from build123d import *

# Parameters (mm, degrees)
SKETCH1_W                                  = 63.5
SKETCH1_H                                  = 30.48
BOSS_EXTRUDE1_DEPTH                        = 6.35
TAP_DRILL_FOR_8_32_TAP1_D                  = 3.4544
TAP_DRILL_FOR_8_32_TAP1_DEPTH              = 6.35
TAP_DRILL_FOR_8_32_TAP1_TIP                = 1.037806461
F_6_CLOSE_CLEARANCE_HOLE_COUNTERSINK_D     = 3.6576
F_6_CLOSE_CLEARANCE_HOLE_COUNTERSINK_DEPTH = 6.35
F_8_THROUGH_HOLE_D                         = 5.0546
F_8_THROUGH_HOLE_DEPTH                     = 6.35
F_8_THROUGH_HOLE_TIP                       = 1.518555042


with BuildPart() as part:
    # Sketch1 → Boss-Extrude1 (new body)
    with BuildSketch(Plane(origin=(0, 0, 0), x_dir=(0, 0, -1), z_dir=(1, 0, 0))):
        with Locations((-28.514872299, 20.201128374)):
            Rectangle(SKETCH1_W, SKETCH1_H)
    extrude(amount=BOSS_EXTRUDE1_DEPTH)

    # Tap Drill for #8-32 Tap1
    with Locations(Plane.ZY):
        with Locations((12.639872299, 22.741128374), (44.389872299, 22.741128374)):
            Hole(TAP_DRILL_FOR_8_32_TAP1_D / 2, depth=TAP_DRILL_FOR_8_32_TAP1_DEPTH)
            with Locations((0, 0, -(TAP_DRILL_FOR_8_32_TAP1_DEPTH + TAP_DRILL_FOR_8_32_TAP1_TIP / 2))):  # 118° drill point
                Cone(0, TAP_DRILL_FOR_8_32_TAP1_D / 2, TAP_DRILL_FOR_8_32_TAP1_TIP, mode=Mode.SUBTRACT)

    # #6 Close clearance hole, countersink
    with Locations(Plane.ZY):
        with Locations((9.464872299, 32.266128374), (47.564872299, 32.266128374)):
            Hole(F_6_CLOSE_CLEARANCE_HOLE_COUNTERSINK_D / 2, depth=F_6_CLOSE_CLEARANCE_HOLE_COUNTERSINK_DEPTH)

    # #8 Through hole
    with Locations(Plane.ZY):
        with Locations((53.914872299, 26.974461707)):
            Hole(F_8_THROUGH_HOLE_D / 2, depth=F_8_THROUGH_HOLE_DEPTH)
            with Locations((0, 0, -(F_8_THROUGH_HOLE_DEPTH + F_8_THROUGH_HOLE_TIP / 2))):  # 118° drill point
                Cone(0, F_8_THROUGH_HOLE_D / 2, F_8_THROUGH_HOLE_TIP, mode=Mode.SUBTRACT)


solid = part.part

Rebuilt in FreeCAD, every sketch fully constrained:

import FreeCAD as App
import Part
import Sketcher
from FreeCAD import Vector
Q = App.Units.Quantity

doc = App.newDocument("Part")
body = doc.addObject("PartDesign::Body", "Body")

# Sketch on YZ plane
sketch1 = body.newObject("Sketcher::SketchObject", "Sketch")
sketch1.AttachmentSupport = (doc.getObject("YZ_Plane"), [""])
sketch1.MapMode = "FlatFace"
sketch1.addGeometry(Part.LineSegment(Vector(35, 60, 0), Vector(5, 60, 0)), False)
sketch1.addGeometry(Part.LineSegment(Vector(5, 60, 0), Vector(5, -3, 0)), False)
sketch1.addGeometry(Part.LineSegment(Vector(5, -3, 0), Vector(35, -3, 0)), False)
sketch1.addGeometry(Part.LineSegment(Vector(35, -3, 0), Vector(35, 60, 0)), False)
sketch1.addConstraint(Sketcher.Constraint("Coincident", 0, 2, 1, 1))
sketch1.addConstraint(Sketcher.Constraint("Coincident", 1, 2, 2, 1))
sketch1.addConstraint(Sketcher.Constraint("Coincident", 2, 2, 3, 1))
sketch1.addConstraint(Sketcher.Constraint("Coincident", 3, 2, 0, 1))
sketch1.addConstraint(Sketcher.Constraint("Horizontal", 0))
sketch1.addConstraint(Sketcher.Constraint("Vertical", 1))
sketch1.addConstraint(Sketcher.Constraint("Horizontal", 2))
sketch1.addConstraint(Sketcher.Constraint("Vertical", 3))
sketch1.addConstraint(Sketcher.Constraint("DistanceX", 0, 2, 0, 1, Q("1.2 in")))
sketch1.addConstraint(Sketcher.Constraint("DistanceY", 1, 2, 1, 1, Q("2.5 in")))
sketch1.addConstraint(Sketcher.Constraint("DistanceX", -1, 1, 0, 2, 4.961128))
sketch1.addConstraint(Sketcher.Constraint("DistanceY", -1, 1, 0, 2, 60.264872))
pad1 = body.newObject("PartDesign::Pad", "Pad")
pad1.Profile = sketch1
pad1.Length = Q("0.25 in")

# Sketch on YZ plane
sketch2 = body.newObject("Sketcher::SketchObject", "Sketch001")
sketch2.AttachmentSupport = (doc.getObject("YZ_Plane"), [""])
sketch2.MapMode = "FlatFace"
sketch2.addGeometry(Part.Circle(Vector(22.7, 12.6, 0), Vector(0, 0, 1), 1.7), False)
sketch2.addGeometry(Part.Circle(Vector(22.7, 44.4, 0), Vector(0, 0, 1), 1.7), False)
sketch2.addConstraint(Sketcher.Constraint("Equal", 0, 1))
sketch2.addConstraint(Sketcher.Constraint("Vertical", 0, 3, 1, 3))
sketch2.addConstraint(Sketcher.Constraint("Diameter", 0, Q("0.136 in")))
sketch2.addConstraint(Sketcher.Constraint("DistanceY", 0, 3, 1, 3, Q("1.25 in")))
sketch2.addConstraint(Sketcher.Constraint("DistanceX", -1, 1, 0, 3, 22.741128))
sketch2.addConstraint(Sketcher.Constraint("DistanceY", -1, 1, 0, 3, 12.639872))
doc.recompute()
hole = body.newObject("PartDesign::Hole", "Hole")
hole.Profile = sketch2
hole.ThreadType = "None"
hole.Diameter = Q("0.136 in")
hole.DepthType = "Dimension"
hole.Depth = Q("0.25 in")
hole.DrillPoint = "Angled"
hole.DrillPointAngle = 118
hole.Reversed = True

# Sketch on YZ plane
sketch3 = body.newObject("Sketcher::SketchObject", "Sketch002")
sketch3.AttachmentSupport = (doc.getObject("YZ_Plane"), [""])
sketch3.MapMode = "FlatFace"
sketch3.addGeometry(Part.Circle(Vector(32.3, 9.5, 0), Vector(0, 0, 1), 1.8), False)
sketch3.addGeometry(Part.Circle(Vector(32.3, 47.6, 0), Vector(0, 0, 1), 1.8), False)
sketch3.addConstraint(Sketcher.Constraint("Equal", 0, 1))
sketch3.addConstraint(Sketcher.Constraint("Vertical", 0, 3, 1, 3))
sketch3.addConstraint(Sketcher.Constraint("Diameter", 0, Q("0.144 in")))
sketch3.addConstraint(Sketcher.Constraint("DistanceY", 0, 3, 1, 3, Q("1.5 in")))
sketch3.addConstraint(Sketcher.Constraint("DistanceX", -1, 1, 0, 3, 32.266128))
sketch3.addConstraint(Sketcher.Constraint("DistanceY", -1, 1, 0, 3, 9.464872))
doc.recompute()
hole2 = body.newObject("PartDesign::Hole", "Hole001")
hole2.Profile = sketch3
hole2.ThreadType = "None"
hole2.Diameter = Q("0.144 in")
hole2.DepthType = "Dimension"
hole2.Depth = Q("0.25 in")
hole2.DrillPoint = "Flat"
hole2.Reversed = True

# Sketch on YZ plane
sketch4 = body.newObject("Sketcher::SketchObject", "Sketch003")
sketch4.AttachmentSupport = (doc.getObject("YZ_Plane"), [""])
sketch4.MapMode = "FlatFace"
sketch4.addGeometry(Part.Circle(Vector(27, 53.9, 0), Vector(0, 0, 1), 2.5), False)
sketch4.addConstraint(Sketcher.Constraint("Diameter", 0, Q("0.199 in")))
sketch4.addConstraint(Sketcher.Constraint("DistanceX", -1, 1, 0, 3, 26.974462))
sketch4.addConstraint(Sketcher.Constraint("DistanceY", -1, 1, 0, 3, 53.914872))
doc.recompute()
hole3 = body.newObject("PartDesign::Hole", "Hole002")
hole3.Profile = sketch4
hole3.ThreadType = "None"
hole3.Diameter = Q("0.199 in")
hole3.DepthType = "Dimension"
hole3.Depth = Q("0.25 in")
hole3.DrillPoint = "Angled"
hole3.DrillPointAngle = 118
hole3.Reversed = True

doc.recompute()
